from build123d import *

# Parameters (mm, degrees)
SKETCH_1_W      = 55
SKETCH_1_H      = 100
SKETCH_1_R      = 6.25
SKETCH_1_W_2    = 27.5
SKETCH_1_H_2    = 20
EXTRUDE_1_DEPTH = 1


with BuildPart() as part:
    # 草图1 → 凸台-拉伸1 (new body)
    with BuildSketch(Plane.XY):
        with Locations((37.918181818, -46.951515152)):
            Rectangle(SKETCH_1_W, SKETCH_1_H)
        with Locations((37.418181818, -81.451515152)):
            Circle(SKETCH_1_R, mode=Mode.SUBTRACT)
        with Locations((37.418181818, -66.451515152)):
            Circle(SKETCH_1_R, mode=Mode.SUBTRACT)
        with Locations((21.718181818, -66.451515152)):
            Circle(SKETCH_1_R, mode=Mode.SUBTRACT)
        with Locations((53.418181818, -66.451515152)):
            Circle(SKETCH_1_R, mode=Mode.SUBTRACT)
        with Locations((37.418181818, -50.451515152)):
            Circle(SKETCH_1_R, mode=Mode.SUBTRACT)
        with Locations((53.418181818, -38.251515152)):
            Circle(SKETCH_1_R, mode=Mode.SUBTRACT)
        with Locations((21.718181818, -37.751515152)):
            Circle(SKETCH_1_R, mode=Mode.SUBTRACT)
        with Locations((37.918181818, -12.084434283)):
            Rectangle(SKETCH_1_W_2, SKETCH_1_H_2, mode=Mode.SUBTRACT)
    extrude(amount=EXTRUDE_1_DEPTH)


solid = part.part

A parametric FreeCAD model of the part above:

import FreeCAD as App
import Part
import Sketcher

V = App.Vector

doc = App.newDocument("Part")
body = doc.addObject("PartDesign::Body", "Body")

# Sketch on XY plane
sketch1 = body.newObject("Sketcher::SketchObject", "Sketch")
sketch1.AttachmentSupport = (doc.getObject("XY_Plane"), [""])
sketch1.MapMode = "FlatFace"
sketch1.addGeometry(Part.LineSegment(V(10, 3, 0), V(10, -97, 0)), False)
sketch1.addGeometry(Part.LineSegment(V(10, -97, 0), V(65, -97, 0)), False)
sketch1.addGeometry(Part.LineSegment(V(65, -97, 0), V(65, 3, 0)), False)
sketch1.addGeometry(Part.LineSegment(V(65, 3, 0), V(10, 3, 0)), False)
sketch1.addGeometry(Part.Circle(V(22, -66, 0), V(0, 0, 1), 6), False)
sketch1.addGeometry(Part.Circle(V(37, -81, 0), V(0, 0, 1), 6), False)
sketch1.addGeometry(Part.Circle(V(37, -66, 0), V(0, 0, 1), 6), False)
sketch1.addGeometry(Part.Circle(V(37, -50, 0), V(0, 0, 1), 6), False)
sketch1.addGeometry(Part.Circle(V(53, -66, 0), V(0, 0, 1), 6), False)
sketch1.addGeometry(Part.Circle(V(22, -38, 0), V(0, 0, 1), 6), False)
sketch1.addGeometry(Part.Circle(V(53, -38, 0), V(0, 0, 1), 6), False)
sketch1.addGeometry(Part.LineSegment(V(52, -22, 0), V(24, -22, 0)), False)
sketch1.addGeometry(Part.LineSegment(V(24, -22, 0), V(24, -2, 0)), False)
sketch1.addGeometry(Part.LineSegment(V(24, -2, 0), V(52, -2, 0)), False)
sketch1.addGeometry(Part.LineSegment(V(52, -2, 0), V(52, -22, 0)), False)
sketch1.addConstraint(Sketcher.Constraint("Coincident", 0, 2, 1, 1))
sketch1.addConstraint(Sketcher.Constraint("Coincident", 1, 2, 2, 1))
sketch1.addConstraint(Sketcher.Constraint("Coincident", 2, 2, 3, 1))
sketch1.addConstraint(Sketcher.Constraint("Coincident", 3, 2, 0, 1))
sketch1.addConstraint(Sketcher.Constraint("Coincident", 11, 2, 12, 1))
sketch1.addConstraint(Sketcher.Constraint("Coincident", 12, 2, 13, 1))
sketch1.addConstraint(Sketcher.Constraint("Coincident", 13, 2, 14, 1))
sketch1.addConstraint(Sketcher.Constraint("Coincident", 14, 2, 11, 1))
sketch1.addConstraint(Sketcher.Constraint("Vertical", 0))
sketch1.addConstraint(Sketcher.Constraint("Horizontal", 1))
sketch1.addConstraint(Sketcher.Constraint("Vertical", 2))
sketch1.addConstraint(Sketcher.Constraint("Horizontal", 3))
sketch1.addConstraint(Sketcher.Constraint("Horizontal", 11))
sketch1.addConstraint(Sketcher.Constraint("Vertical", 12))
sketch1.addConstraint(Sketcher.Constraint("Horizontal", 13))
sketch1.addConstraint(Sketcher.Constraint("Vertical", 14))
sketch1.addConstraint(Sketcher.Constraint("Equal", 4, 5))
sketch1.addConstraint(Sketcher.Constraint("Equal", 5, 6))
sketch1.addConstraint(Sketcher.Constraint("Equal", 6, 7))
sketch1.addConstraint(Sketcher.Constraint("Equal", 7, 8))
sketch1.addConstraint(Sketcher.Constraint("Equal", 8, 9))
sketch1.addConstraint(Sketcher.Constraint("Equal", 9, 10))
sketch1.addConstraint(Sketcher.Constraint("Horizontal", 4, 3, 6, 3))
sketch1.addConstraint(Sketcher.Constraint("Horizontal", 6, 3, 8, 3))
sketch1.addConstraint(Sketcher.Constraint("Vertical", 5, 3, 6, 3))
sketch1.addConstraint(Sketcher.Constraint("Vertical", 6, 3, 7, 3))
sketch1.addConstraint(Sketcher.Constraint("Vertical", 4, 3, 9, 3))
sketch1.addConstraint(Sketcher.Constraint("Vertical", 8, 3, 10, 3))
sketch1.addConstraint(Sketcher.Constraint("Diameter", 4, 12.5))
sketch1.addConstraint(Sketcher.Constraint("DistanceX", 1, 1, 1, 2, 55.0))
sketch1.addConstraint(Sketcher.Constraint("DistanceY", 0, 2, 0, 1, 100.0))
sketch1.addConstraint(Sketcher.Constraint("DistanceY", 12, 1, 12, 2, 20.0))
sketch1.addConstraint(Sketcher.Constraint("DistanceX", 11, 2, 11, 1, 27.5))
sketch1.addConstraint(Sketcher.Constraint("DistanceY", 5, 3, 4, 3, 15.0))
sketch1.addConstraint(Sketcher.Constraint("DistanceY", 6, 3, 7, 3, 16.0))
sketch1.addConstraint(Sketcher.Constraint("DistanceX", 6, 3, 8, 3, 16.0))
sketch1.addConstraint(Sketcher.Constraint("DistanceX", 0, 2, 5, 3, 27.0))
sketch1.addConstraint(Sketcher.Constraint("DistanceX", 4, 3, 5, 3, 15.7))
sketch1.addConstraint(Sketcher.Constraint("DistanceY", 7, 3, 9, 3, 12.7))
sketch1.addConstraint(Sketcher.Constraint("DistanceY", 7, 3, 10, 3, 12.2))
sketch1.addConstraint(Sketcher.Constraint("DistanceY", 0, 2, 5, 3, 15.5))
sketch1.addConstraint(Sketcher.Constraint("DistanceX", 9, 3, 11, 2, 2.45))
sketch1.addConstraint(Sketcher.Constraint("DistanceX", -1, 1, 4, 3, 21.718182))
sketch1.addConstraint(Sketcher.Constraint("DistanceY", 9, 3, 11, 2, 15.667081))
sketch1.addConstraint(Sketcher.Constraint("DistanceY", 4, 3, -1, 1, 66.451515))
pad1 = body.newObject("PartDesign::Pad", "Pad")
pad1.Profile = sketch1
pad1.Length = 1

doc.recompute()
